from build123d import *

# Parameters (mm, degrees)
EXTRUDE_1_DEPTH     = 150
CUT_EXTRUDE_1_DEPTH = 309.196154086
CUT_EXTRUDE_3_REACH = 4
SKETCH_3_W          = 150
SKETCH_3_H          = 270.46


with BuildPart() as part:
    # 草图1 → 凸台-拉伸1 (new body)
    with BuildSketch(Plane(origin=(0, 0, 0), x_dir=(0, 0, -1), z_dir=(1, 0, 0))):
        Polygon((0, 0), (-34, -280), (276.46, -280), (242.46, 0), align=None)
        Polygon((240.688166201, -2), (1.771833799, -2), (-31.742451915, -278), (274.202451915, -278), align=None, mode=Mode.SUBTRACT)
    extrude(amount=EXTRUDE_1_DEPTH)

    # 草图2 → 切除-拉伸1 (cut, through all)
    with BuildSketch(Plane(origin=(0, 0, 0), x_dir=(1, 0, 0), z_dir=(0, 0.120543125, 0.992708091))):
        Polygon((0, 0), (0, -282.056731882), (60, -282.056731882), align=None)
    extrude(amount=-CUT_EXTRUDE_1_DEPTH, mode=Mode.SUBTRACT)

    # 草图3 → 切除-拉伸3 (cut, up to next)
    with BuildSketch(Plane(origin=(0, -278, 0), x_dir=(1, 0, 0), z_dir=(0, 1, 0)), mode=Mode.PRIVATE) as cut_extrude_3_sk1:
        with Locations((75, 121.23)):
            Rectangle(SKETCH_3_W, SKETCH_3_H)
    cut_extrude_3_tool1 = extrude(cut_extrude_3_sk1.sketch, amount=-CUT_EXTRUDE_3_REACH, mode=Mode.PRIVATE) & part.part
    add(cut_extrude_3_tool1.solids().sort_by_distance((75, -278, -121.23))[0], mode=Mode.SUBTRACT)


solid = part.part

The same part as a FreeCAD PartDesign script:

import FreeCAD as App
import Part
import Sketcher


def add_polygon(sketch, points):
    """Adds a closed chain of lines whose ends are joined by coincident constraints."""
    first, n = sketch.GeometryCount, len(points)
    for a, b in zip(points, points[1:] + points[:1]):
        sketch.addGeometry(Part.LineSegment(App.Vector(*a, 0), App.Vector(*b, 0)), False)
    for i in range(n):
        sketch.addConstraint(Sketcher.Constraint("Coincident", first + i, 2, first + (i + 1) % n, 1))

doc = App.newDocument("Part")
body = doc.addObject("PartDesign::Body", "Body")

# Sketch on YZ plane
sketch1 = body.newObject("Sketcher::SketchObject", "Sketch")
sketch1.AttachmentSupport = (doc.getObject("YZ_Plane"), [""])
sketch1.MapMode = "FlatFace"
add_polygon(sketch1, [(0, 0), (-280, 34), (-280, -276), (0, -242)])  # lines 0-3
add_polygon(sketch1, [(-2, -2), (-2, -241), (-278, -274), (-278, 32)])  # lines 4-7
sketch1.addConstraint([
    Sketcher.Constraint("Vertical", 1),
    Sketcher.Constraint("Vertical", 3),
    Sketcher.Constraint("Vertical", 4),
    Sketcher.Constraint("Vertical", 6),
    Sketcher.Constraint("Coincident", 3, 2, -1, 1),
    Sketcher.Constraint("Parallel", 2, 5),
    Sketcher.Constraint("Parallel", 0, 7),
    Sketcher.Constraint("Equal", 0, 2),
    Sketcher.Constraint("DistanceX", 0, 2, -1, 1, 280.0),
    Sketcher.Constraint("DistanceY", -1, 1, 0, 2, 34.0),
    Sketcher.Constraint("DistanceX", 4, 2, -1, 1, 2.0),
    Sketcher.Constraint("DistanceX", 5, 2, -1, 1, 278.0),
    Sketcher.Constraint("DistanceY", 1, 2, 1, 1, 310.46),
    Sketcher.Constraint("DistanceY", 4, 2, 4, 1, 238.916332),
    Sketcher.Constraint("DistanceY", 5, 2, -1, 1, 274.202452),
])
pad1 = body.newObject("PartDesign::Pad", "Pad")
pad1.Profile = sketch1
pad1.Length = 150

# Sketch on an angled plane
sketch2 = body.newObject("Sketcher::SketchObject", "Sketch001")
sketch2.Placement = App.Placement(App.Vector(0, 0, 0), App.Rotation(App.Vector(1, 0, 0), App.Vector(0, 0.992708092, -0.120543125), App.Vector(0, 0.120543125, 0.992708092), "ZXY"))
add_polygon(sketch2, [(0, 0), (0, -282), (60, -282)])  # lines 0-2
sketch2.addConstraint([
    Sketcher.Constraint("Vertical", 0),
    Sketcher.Constraint("Horizontal", 1),
    Sketcher.Constraint("Coincident", 2, 2, -1, 1),
    Sketcher.Constraint("DistanceX", 1, 1, 1, 2, 60.0),
    Sketcher.Constraint("Distance", 2, 288.367821),
])
pocket1 = body.newObject("PartDesign::Pocket", "Pocket")
pocket1.Profile = sketch2
pocket1.Type = "ThroughAll"

# Sketch on XZ plane
sketch3 = body.newObject("Sketcher::SketchObject", "Sketch002")
sketch3.AttachmentSupport = (doc.getObject("XZ_Plane"), [""])
sketch3.MapMode = "FlatFace"
sketch3.AttachmentOffset = App.Placement(App.Vector(0, 0, 278), App.Rotation())
add_polygon(sketch3, [(0, -256), (0, 14), (150, 14), (150, -256)])  # lines 0-3
sketch3.addConstraint([
    Sketcher.Constraint("Vertical", 0),
    Sketcher.Constraint("Horizontal", 1),
    Sketcher.Constraint("Vertical", 2),
    Sketcher.Constraint("Horizontal", 3),
    Sketcher.Constraint("PointOnObject", 0, 2, -2),
    Sketcher.Constraint("DistanceX", 1, 1, 1, 2, 150.0),
    Sketcher.Constraint("DistanceY", -1, 1, 0, 2, 14.0),
    Sketcher.Constraint("DistanceY", 0, 1, 0, 2, 270.46),
])
pocket2 = body.newObject("PartDesign::Pocket", "Pocket001")
pocket2.Profile = sketch3
pocket2.Type = "UpToFirst"
pocket2.Reversed = True

doc.recompute()
